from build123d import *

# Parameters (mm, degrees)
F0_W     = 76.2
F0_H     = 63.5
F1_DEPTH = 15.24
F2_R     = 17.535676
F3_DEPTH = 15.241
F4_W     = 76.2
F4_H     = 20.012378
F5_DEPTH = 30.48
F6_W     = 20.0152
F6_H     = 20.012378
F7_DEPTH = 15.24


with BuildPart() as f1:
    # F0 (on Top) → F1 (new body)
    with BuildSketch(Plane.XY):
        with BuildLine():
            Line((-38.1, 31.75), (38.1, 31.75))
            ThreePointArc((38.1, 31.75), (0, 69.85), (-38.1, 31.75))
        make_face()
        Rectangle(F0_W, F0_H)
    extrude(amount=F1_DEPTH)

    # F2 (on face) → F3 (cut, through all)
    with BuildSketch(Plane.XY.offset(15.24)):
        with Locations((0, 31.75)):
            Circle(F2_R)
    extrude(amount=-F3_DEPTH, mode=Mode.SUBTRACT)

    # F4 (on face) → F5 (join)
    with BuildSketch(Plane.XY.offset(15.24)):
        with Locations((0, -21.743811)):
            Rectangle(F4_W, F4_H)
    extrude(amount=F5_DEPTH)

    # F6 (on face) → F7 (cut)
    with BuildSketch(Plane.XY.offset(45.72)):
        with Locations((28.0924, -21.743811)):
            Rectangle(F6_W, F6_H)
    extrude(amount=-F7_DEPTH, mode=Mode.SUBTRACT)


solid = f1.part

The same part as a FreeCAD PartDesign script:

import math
import FreeCAD as App
import Part
import Sketcher
Q = App.Units.Quantity


def add_polygon(sketch, points):
    """Adds a closed chain of lines whose ends are joined by coincident constraints."""
    first, n = sketch.GeometryCount, len(points)
    for a, b in zip(points, points[1:] + points[:1]):
        sketch.addGeometry(Part.LineSegment(App.Vector(*a, 0), App.Vector(*b, 0)), False)
    for i in range(n):
        sketch.addConstraint(Sketcher.Constraint("Coincident", first + i, 2, first + (i + 1) % n, 1))

doc = App.newDocument("Part")
body = doc.addObject("PartDesign::Body", "Body")

# Sketch on XY plane
sketch1 = body.newObject("Sketcher::SketchObject", "Sketch")
sketch1.AttachmentSupport = (doc.getObject("XY_Plane"), [""])
sketch1.MapMode = "FlatFace"
sketch1.addGeometry(Part.ArcOfCircle(Part.Circle(App.Vector(0, 32, 0), App.Vector(0, 0, 1), 38), math.radians(0), math.radians(180)), False)
sketch1.addGeometry(Part.LineSegment(App.Vector(-38, 32, 0), App.Vector(-38, -32, 0)), False)
sketch1.addGeometry(Part.LineSegment(App.Vector(-38, -32, 0), App.Vector(38, -32, 0)), False)
sketch1.addGeometry(Part.LineSegment(App.Vector(38, -32, 0), App.Vector(38, 32, 0)), False)
sketch1.addConstraint(Sketcher.Constraint("Tangent", 0, 2, 1, 1))
sketch1.addConstraint(Sketcher.Constraint("Coincident", 1, 2, 2, 1))
sketch1.addConstraint(Sketcher.Constraint("Coincident", 2, 2, 3, 1))
sketch1.addConstraint(Sketcher.Constraint("Tangent", 3, 2, 0, 1))
sketch1.addConstraint(Sketcher.Constraint("Vertical", 1))
sketch1.addConstraint(Sketcher.Constraint("Horizontal", 2))
sketch1.addConstraint(Sketcher.Constraint("Vertical", 3))
sketch1.addConstraint(Sketcher.Constraint("Symmetric", 0, 2, 2, 2, -1, 1))
sketch1.addConstraint(Sketcher.Constraint("Radius", 0, Q("1.5 in")))
sketch1.addConstraint(Sketcher.Constraint("DistanceY", 1, 2, 1, 1, Q("2.5 in")))
pad1 = body.newObject("PartDesign::Pad", "Pad")
pad1.Profile = sketch1
pad1.Length = Q("0.6 in")

# Sketch on XY plane
sketch2 = body.newObject("Sketcher::SketchObject", "Sketch001")
sketch2.AttachmentSupport = (doc.getObject("XY_Plane"), [""])
sketch2.MapMode = "FlatFace"
sketch2.AttachmentOffset = App.Placement(App.Vector(0, 0, 0.6 * 25.4), App.Rotation())
sketch2.addGeometry(Part.Circle(App.Vector(0, 32, 0), App.Vector(0, 0, 1), 18), False)
sketch2.addConstraint(Sketcher.Constraint("PointOnObject", 0, 3, -2))
sketch2.addConstraint(Sketcher.Constraint("DistanceY", -1, 1, 0, 3, Q("1.25 in")))
sketch2.addConstraint(Sketcher.Constraint("Diameter", 0, Q("35.071352 mm")))
pocket1 = body.newObject("PartDesign::Pocket", "Pocket")
pocket1.Profile = sketch2
pocket1.Type = "ThroughAll"

# Sketch on XY plane
sketch3 = body.newObject("Sketcher::SketchObject", "Sketch002")
sketch3.AttachmentSupport = (doc.getObject("XY_Plane"), [""])
sketch3.MapMode = "FlatFace"
sketch3.AttachmentOffset = App.Placement(App.Vector(0, 0, 0.6 * 25.4), App.Rotation())
add_polygon(sketch3, [(-38, -12), (-38, -32), (38, -32), (38, -12)])  # lines 0-3
sketch3.addConstraint(Sketcher.Constraint("Vertical", 0))
sketch3.addConstraint(Sketcher.Constraint("Horizontal", 1))
sketch3.addConstraint(Sketcher.Constraint("Vertical", 2))
sketch3.addConstraint(Sketcher.Constraint("Horizontal", 3))
sketch3.addConstraint(Sketcher.Constraint("DistanceX", 1, 1, 1, 2, Q("3 in")))
sketch3.addConstraint(Sketcher.Constraint("DistanceX", 0, 2, -1, 1, Q("1.5 in")))
sketch3.addConstraint(Sketcher.Constraint("DistanceY", 0, 2, -1, 1, Q("1.25 in")))
sketch3.addConstraint(Sketcher.Constraint("DistanceY", 0, 2, 0, 1, Q("20.012378 mm")))
pad2 = body.newObject("PartDesign::Pad", "Pad001")
pad2.Profile = sketch3
pad2.Length = Q("1.2 in")

# Sketch on XY plane
sketch4 = body.newObject("Sketcher::SketchObject", "Sketch003")
sketch4.AttachmentSupport = (doc.getObject("XY_Plane"), [""])
sketch4.MapMode = "FlatFace"
sketch4.AttachmentOffset = App.Placement(App.Vector(0, 0, 1.8 * 25.4), App.Rotation())
add_polygon(sketch4, [(18, -12), (18, -32), (38, -32), (38, -12)])  # lines 0-3
sketch4.addConstraint(Sketcher.Constraint("Vertical", 0))
sketch4.addConstraint(Sketcher.Constraint("Horizontal", 1))
sketch4.addConstraint(Sketcher.Constraint("Vertical", 2))
sketch4.addConstraint(Sketcher.Constraint("Horizontal", 3))
sketch4.addConstraint(Sketcher.Constraint("DistanceX", -1, 1, 1, 2, Q("1.5 in")))
sketch4.addConstraint(Sketcher.Constraint("DistanceX", 1, 1, 1, 2, Q("0.788 in")))
sketch4.addConstraint(Sketcher.Constraint("DistanceY", 0, 2, -1, 1, Q("1.25 in")))
sketch4.addConstraint(Sketcher.Constraint("DistanceY", 0, 2, 0, 1, Q("20.012378 mm")))
pocket2 = body.newObject("PartDesign::Pocket", "Pocket001")
pocket2.Profile = sketch4
pocket2.Length = Q("0.6 in")

doc.recompute()
